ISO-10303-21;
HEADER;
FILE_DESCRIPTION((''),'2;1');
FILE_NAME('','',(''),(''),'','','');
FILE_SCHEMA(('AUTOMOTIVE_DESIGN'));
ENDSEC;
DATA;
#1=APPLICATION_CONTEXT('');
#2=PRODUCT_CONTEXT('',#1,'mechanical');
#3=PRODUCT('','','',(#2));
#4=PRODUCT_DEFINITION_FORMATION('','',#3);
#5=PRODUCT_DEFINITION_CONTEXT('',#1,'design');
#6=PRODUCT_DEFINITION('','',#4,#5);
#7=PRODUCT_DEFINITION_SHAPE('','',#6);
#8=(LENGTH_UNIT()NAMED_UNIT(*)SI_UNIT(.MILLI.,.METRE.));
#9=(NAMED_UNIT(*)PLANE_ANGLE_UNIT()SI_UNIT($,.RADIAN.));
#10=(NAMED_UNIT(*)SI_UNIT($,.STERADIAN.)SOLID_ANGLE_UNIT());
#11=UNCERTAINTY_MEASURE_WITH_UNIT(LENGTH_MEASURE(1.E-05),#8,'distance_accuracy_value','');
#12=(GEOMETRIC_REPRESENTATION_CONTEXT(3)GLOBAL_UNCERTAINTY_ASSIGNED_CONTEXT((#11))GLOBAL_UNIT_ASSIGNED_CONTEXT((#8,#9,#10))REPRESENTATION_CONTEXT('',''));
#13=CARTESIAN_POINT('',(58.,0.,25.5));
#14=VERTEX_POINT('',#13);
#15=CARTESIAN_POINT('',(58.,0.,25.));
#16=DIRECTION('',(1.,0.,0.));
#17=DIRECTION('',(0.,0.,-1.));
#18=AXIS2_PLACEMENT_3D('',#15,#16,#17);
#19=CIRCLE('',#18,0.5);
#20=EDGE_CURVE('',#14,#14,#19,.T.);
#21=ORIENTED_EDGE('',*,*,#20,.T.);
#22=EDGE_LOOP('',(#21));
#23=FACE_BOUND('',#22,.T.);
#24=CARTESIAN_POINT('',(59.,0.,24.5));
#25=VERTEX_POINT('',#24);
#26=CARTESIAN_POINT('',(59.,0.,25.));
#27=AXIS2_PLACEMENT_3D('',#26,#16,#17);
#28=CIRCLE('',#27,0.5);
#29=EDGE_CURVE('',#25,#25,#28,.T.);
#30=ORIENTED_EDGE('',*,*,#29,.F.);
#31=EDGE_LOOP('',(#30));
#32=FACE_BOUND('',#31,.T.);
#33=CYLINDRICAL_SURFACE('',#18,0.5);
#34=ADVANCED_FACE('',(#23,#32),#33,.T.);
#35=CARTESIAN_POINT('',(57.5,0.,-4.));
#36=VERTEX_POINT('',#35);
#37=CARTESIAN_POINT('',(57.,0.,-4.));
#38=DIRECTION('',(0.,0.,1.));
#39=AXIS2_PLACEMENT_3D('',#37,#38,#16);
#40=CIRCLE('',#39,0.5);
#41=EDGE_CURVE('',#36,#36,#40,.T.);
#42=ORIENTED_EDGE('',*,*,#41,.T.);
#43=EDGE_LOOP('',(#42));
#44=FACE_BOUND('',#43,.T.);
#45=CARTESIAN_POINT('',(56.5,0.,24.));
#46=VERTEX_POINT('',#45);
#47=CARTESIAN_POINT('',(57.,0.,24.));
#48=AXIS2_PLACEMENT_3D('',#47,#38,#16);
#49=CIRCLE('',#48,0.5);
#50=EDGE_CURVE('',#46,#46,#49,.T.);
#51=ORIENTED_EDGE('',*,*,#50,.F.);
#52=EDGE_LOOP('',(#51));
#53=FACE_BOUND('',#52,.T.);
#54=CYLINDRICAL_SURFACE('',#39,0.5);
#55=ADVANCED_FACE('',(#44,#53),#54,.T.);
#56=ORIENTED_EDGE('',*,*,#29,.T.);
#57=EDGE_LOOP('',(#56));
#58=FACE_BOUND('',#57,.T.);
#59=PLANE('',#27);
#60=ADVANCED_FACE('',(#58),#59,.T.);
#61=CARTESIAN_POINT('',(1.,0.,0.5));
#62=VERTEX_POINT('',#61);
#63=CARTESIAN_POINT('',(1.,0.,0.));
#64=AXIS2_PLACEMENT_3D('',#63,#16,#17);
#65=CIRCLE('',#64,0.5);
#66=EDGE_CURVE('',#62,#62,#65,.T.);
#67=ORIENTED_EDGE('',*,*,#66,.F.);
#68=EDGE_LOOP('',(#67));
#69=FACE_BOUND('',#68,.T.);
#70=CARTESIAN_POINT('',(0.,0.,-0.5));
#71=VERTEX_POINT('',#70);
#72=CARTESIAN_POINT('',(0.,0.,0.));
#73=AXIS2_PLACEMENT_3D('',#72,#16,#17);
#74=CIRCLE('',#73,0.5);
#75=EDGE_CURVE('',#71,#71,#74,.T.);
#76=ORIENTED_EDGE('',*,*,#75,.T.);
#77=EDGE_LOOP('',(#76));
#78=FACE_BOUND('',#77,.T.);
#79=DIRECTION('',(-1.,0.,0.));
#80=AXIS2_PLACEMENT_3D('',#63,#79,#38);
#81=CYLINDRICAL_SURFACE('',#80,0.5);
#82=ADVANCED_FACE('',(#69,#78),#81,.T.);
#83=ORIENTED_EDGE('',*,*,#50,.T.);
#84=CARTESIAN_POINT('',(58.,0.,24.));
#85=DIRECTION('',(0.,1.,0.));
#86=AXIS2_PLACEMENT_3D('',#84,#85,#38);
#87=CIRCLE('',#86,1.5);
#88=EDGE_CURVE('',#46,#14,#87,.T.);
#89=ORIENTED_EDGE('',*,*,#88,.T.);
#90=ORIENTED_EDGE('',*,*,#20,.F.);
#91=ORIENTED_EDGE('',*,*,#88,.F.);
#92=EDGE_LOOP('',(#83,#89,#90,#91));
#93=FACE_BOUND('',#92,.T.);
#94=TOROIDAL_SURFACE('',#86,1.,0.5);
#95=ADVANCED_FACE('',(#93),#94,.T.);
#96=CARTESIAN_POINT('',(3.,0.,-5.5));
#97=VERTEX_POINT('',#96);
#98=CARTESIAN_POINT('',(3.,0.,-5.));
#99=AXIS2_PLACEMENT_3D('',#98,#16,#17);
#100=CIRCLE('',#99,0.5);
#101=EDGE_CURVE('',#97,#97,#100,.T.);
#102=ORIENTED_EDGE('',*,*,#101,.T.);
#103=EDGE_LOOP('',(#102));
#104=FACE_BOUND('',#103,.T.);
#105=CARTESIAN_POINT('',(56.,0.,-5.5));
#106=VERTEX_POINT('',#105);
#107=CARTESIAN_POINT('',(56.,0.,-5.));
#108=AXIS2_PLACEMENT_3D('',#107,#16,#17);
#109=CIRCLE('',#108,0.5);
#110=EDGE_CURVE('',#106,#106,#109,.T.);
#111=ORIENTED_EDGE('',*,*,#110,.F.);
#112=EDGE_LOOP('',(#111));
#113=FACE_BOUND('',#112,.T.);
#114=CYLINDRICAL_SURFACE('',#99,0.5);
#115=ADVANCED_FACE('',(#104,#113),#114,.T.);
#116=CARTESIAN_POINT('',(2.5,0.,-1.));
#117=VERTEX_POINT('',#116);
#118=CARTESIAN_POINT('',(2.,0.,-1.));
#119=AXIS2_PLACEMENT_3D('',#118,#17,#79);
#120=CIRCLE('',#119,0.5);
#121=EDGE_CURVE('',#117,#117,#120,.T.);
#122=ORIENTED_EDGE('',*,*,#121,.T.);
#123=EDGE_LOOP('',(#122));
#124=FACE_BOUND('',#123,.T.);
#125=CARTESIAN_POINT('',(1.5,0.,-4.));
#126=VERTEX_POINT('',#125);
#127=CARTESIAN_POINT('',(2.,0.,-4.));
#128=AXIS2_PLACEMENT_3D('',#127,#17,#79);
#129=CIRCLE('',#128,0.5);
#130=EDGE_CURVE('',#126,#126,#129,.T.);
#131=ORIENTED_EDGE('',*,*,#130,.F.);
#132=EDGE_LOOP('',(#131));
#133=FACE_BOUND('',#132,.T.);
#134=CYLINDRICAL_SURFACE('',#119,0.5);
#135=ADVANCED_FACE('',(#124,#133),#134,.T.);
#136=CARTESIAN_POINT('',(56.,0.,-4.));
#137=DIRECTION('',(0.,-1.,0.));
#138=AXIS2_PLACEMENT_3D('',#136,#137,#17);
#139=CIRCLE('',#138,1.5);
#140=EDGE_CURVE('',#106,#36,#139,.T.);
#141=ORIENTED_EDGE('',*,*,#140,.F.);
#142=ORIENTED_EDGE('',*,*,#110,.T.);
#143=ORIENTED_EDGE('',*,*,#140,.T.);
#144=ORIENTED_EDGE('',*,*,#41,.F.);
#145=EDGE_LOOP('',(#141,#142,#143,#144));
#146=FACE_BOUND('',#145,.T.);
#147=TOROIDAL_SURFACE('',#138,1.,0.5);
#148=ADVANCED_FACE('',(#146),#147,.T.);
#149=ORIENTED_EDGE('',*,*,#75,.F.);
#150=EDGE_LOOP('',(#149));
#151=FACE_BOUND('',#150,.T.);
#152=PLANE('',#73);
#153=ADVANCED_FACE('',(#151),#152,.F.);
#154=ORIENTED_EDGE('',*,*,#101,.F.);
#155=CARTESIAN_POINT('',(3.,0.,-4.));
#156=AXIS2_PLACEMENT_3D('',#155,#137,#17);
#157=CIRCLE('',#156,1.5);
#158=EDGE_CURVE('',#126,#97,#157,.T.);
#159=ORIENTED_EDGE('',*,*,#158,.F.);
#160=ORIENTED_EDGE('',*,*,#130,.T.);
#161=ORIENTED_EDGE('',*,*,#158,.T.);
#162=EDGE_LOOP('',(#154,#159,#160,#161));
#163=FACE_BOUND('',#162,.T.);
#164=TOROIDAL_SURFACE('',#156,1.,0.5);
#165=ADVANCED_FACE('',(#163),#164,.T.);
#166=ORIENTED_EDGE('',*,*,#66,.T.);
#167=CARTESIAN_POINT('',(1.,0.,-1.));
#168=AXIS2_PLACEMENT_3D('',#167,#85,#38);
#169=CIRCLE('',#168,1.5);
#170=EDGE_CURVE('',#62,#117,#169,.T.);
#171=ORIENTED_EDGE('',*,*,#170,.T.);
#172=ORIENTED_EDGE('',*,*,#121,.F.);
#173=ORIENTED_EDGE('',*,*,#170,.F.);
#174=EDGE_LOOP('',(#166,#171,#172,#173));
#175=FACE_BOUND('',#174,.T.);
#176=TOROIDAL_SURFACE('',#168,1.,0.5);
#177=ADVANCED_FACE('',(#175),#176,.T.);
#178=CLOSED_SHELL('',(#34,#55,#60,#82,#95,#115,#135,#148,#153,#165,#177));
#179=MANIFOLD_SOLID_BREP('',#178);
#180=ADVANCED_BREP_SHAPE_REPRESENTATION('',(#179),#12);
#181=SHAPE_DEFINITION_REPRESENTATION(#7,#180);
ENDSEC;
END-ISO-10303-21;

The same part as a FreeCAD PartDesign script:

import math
import FreeCAD as App
import Part
import Sketcher

V = App.Vector

doc = App.newDocument("Part")
params = doc.addObject("Spreadsheet::Sheet", "Params")
for row, (alias, value) in enumerate([
    ("sketch1_diameter", "1 mm"),
    ("sketch2_radius", "1 mm"),
    ("sketch2_width", "1 mm"),
    ("sketch2_width2", "53 mm"),
    ("sketch2_height", "28 mm"),
    ("sketch2_height2", "3 mm"),
], start=1):
    params.set(f"A{row}", alias)
    params.set(f"B{row}", "=" + value)
    params.setAlias(f"B{row}", alias)

body = doc.addObject("PartDesign::Body", "Body")

# Sketch on YZ plane
sketch1 = body.newObject("Sketcher::SketchObject", "Sketch")
sketch1.AttachmentSupport = (doc.getObject("YZ_Plane"), [""])
sketch1.MapMode = "FlatFace"
sketch1.addGeometry(Part.Circle(V(0, 0, 0), V(0, 0, 1), 0.5), False)
sketch1.addConstraint([
    Sketcher.Constraint("Coincident", 0, 3, -1, 1),
    Sketcher.Constraint("Diameter", 0, 1.0),
])
sketch1.setExpression("Constraints[1]", "Params.sketch1_diameter")

# Sketch on XZ plane
sketch2 = body.newObject("Sketcher::SketchObject", "Sketch001")
sketch2.AttachmentSupport = (doc.getObject("XZ_Plane"), [""])
sketch2.MapMode = "FlatFace"
sketch2.addGeometry([
    Part.LineSegment(V(59, 25, 0), V(58, 25, 0)),  # 0
    Part.ArcOfCircle(Part.Circle(V(58, 24, 0), V(0, 0, 1), 1), math.radians(90), math.radians(180)),  # 1
    Part.LineSegment(V(57, 24, 0), V(57, -4, 0)),  # 2
    Part.ArcOfCircle(Part.Circle(V(56, -4, 0), V(0, 0, 1), 1), math.radians(-90), math.radians(0)),  # 3
    Part.LineSegment(V(56, -5, 0), V(3, -5, 0)),  # 4
    Part.ArcOfCircle(Part.Circle(V(3, -4, 0), V(0, 0, 1), 1), math.radians(-180), math.radians(-90)),  # 5
    Part.LineSegment(V(2, -4, 0), V(2, -1, 0)),  # 6
    Part.ArcOfCircle(Part.Circle(V(1, -1, 0), V(0, 0, 1), 1), math.radians(0), math.radians(90)),  # 7
    Part.LineSegment(V(1, 0, 0), V(0, 0, 0)),  # 8
], False)
sketch2.addConstraint([
    Sketcher.Constraint("Tangent", 0, 2, 1, 1),
    Sketcher.Constraint("Tangent", 1, 2, 2, 1),
    Sketcher.Constraint("Tangent", 2, 2, 3, 2),
    Sketcher.Constraint("Tangent", 3, 1, 4, 1),
    Sketcher.Constraint("Tangent", 4, 2, 5, 2),
    Sketcher.Constraint("Tangent", 5, 1, 6, 1),
    Sketcher.Constraint("Tangent", 6, 2, 7, 1),
    Sketcher.Constraint("Tangent", 7, 2, 8, 1),
    Sketcher.Constraint("Horizontal", 0),
    Sketcher.Constraint("Vertical", 2),
    Sketcher.Constraint("Horizontal", 4),
    Sketcher.Constraint("Vertical", 6),
    Sketcher.Constraint("Horizontal", 8),
    Sketcher.Constraint("Coincident", 8, 2, -1, 1),
    Sketcher.Constraint("Equal", 1, 3),
    Sketcher.Constraint("Equal", 3, 5),
    Sketcher.Constraint("Equal", 5, 7),
    Sketcher.Constraint("Equal", 0, 8),
    Sketcher.Constraint("Radius", 1, 1.0),
    Sketcher.Constraint("DistanceX", 0, 2, 0, 1, 1.0),
    Sketcher.Constraint("DistanceX", 4, 2, 4, 1, 53.0),
    Sketcher.Constraint("DistanceY", 2, 2, 2, 1, 28.0),
    Sketcher.Constraint("DistanceY", 6, 1, 6, 2, 3.0),
])
sketch2.setExpression("Constraints[18]", "Params.sketch2_radius")
sketch2.setExpression("Constraints[19]", "Params.sketch2_width")
sketch2.setExpression("Constraints[20]", "Params.sketch2_width2")
sketch2.setExpression("Constraints[21]", "Params.sketch2_height")
sketch2.setExpression("Constraints[22]", "Params.sketch2_height2")
doc.recompute()

additivepipe = body.newObject("PartDesign::AdditivePipe", "AdditivePipe")
additivepipe.Profile = sketch1
additivepipe.Spine = (sketch2, ["Edge1", "Edge2", "Edge3", "Edge4", "Edge5", "Edge6", "Edge7", "Edge8", "Edge9"])

doc.recompute()
